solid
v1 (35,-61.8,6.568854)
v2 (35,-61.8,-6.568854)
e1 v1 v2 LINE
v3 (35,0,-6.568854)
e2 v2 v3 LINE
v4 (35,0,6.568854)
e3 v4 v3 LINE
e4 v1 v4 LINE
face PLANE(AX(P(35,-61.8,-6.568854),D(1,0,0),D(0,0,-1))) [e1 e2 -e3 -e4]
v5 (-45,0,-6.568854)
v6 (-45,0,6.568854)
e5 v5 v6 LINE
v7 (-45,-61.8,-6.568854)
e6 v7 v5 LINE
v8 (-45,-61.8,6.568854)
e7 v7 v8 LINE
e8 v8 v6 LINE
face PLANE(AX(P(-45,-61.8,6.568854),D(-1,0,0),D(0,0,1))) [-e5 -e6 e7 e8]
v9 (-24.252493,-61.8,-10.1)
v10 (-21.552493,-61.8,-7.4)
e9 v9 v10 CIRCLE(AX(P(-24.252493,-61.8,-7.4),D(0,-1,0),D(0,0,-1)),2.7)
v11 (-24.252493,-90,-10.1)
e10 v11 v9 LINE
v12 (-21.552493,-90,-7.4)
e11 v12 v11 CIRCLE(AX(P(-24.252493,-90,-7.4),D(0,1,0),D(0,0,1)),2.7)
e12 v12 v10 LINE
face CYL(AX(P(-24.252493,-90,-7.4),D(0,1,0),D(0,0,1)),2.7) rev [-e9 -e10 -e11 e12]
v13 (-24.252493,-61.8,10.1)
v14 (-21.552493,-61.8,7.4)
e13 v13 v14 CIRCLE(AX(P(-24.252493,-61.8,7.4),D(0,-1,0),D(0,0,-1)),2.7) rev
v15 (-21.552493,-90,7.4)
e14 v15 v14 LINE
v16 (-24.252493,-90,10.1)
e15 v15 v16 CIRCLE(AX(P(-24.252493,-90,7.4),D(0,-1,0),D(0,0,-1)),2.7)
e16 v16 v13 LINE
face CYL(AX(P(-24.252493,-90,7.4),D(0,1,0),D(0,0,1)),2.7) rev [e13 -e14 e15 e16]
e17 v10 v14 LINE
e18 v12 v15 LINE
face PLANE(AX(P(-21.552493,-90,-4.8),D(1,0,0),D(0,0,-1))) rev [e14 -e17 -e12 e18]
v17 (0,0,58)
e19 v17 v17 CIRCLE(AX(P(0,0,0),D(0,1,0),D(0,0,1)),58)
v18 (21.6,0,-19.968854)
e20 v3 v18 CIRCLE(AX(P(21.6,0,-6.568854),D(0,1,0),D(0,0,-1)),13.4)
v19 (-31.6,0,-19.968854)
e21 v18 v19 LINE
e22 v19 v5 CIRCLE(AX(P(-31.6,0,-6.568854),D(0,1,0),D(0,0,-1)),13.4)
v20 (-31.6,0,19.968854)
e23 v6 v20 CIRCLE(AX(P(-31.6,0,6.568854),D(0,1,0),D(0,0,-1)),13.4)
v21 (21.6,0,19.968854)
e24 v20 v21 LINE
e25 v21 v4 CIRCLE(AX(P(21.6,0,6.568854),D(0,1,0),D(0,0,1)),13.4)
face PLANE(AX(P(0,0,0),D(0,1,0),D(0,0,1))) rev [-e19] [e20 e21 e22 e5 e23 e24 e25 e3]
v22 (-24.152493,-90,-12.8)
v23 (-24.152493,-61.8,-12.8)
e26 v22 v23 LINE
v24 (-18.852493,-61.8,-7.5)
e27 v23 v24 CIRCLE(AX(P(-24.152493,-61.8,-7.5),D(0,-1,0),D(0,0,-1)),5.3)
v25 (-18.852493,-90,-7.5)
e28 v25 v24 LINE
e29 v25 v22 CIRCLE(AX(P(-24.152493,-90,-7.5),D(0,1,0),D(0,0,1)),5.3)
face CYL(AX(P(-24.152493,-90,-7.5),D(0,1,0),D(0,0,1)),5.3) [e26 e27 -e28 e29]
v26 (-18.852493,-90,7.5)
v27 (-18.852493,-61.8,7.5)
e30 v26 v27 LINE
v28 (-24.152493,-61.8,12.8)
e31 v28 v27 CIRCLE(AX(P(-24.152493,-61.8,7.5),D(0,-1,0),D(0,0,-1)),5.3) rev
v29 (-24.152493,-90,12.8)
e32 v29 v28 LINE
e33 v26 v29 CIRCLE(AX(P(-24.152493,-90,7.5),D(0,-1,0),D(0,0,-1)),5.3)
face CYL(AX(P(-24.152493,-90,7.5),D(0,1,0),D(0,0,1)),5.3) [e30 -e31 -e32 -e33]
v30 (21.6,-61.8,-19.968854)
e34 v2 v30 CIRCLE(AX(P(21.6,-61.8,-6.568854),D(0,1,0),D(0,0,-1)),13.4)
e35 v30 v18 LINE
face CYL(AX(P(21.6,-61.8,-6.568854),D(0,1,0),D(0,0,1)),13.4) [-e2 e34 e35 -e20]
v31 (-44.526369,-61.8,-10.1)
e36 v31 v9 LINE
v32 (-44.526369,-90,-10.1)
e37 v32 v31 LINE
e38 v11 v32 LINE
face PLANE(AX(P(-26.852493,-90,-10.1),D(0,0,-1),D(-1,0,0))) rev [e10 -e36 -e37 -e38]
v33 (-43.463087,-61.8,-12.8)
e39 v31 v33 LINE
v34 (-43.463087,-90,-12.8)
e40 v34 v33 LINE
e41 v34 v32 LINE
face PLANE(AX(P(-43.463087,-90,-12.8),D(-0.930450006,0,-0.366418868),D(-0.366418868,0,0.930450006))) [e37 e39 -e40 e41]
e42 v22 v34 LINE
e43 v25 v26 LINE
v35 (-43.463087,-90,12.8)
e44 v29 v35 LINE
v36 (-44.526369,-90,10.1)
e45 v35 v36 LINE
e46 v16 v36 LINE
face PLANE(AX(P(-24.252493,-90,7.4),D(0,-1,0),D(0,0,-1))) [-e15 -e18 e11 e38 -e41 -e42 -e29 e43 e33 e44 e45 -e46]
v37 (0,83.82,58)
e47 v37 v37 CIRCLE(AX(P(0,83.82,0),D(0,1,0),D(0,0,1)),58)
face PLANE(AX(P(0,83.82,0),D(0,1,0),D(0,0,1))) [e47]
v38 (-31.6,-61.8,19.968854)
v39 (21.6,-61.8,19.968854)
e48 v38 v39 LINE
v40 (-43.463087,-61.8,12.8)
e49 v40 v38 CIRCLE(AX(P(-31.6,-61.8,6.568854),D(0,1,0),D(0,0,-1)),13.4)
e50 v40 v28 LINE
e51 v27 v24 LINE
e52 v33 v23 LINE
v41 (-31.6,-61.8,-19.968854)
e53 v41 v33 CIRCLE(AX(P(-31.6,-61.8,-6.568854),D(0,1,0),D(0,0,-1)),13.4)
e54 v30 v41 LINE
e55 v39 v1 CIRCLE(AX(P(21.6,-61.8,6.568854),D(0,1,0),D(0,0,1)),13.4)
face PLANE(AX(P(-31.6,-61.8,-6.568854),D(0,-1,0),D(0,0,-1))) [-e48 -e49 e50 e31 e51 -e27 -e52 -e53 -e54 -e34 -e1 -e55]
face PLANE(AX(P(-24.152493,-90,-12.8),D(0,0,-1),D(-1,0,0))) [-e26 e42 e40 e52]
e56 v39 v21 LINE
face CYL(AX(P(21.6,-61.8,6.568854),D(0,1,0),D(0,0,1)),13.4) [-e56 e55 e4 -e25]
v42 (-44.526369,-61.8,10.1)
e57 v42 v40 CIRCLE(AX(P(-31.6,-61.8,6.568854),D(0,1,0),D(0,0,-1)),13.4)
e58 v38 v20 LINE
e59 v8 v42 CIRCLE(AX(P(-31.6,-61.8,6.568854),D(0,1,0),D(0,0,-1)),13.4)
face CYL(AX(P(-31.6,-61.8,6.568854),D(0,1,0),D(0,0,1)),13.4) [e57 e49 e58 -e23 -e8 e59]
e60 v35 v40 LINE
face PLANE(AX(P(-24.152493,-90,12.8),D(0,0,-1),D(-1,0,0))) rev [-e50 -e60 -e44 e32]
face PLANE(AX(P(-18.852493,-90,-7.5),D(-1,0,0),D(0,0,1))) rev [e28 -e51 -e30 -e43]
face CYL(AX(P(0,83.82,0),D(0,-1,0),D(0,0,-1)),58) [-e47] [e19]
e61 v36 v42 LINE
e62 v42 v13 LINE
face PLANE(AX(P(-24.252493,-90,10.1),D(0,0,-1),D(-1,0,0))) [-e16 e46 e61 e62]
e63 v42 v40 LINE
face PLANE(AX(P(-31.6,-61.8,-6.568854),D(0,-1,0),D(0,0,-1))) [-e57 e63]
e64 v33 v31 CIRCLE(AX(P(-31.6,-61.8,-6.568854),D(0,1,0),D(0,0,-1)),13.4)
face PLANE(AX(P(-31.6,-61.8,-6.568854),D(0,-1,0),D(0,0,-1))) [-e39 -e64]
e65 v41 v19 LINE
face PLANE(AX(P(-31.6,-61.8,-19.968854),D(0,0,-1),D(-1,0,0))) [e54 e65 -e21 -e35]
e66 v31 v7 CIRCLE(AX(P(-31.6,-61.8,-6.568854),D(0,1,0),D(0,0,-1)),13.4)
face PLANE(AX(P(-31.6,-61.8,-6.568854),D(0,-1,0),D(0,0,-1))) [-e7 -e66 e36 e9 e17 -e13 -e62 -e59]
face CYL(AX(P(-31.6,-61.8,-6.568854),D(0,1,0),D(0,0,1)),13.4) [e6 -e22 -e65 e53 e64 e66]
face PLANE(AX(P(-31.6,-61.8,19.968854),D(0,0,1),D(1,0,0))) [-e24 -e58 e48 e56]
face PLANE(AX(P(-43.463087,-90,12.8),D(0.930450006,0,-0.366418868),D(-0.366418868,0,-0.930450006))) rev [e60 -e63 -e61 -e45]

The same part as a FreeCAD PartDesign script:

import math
import FreeCAD as App
import Part
import Sketcher

doc = App.newDocument("Part")
body = doc.addObject("PartDesign::Body", "Body")

# Sketch on XZ plane
sketch1 = body.newObject("Sketcher::SketchObject", "Sketch")
sketch1.AttachmentSupport = (doc.getObject("XZ_Plane"), [""])
sketch1.MapMode = "FlatFace"
sketch1.addGeometry(Part.Circle(App.Vector(0, 0, 0), App.Vector(0, 0, 1), 58), False)
sketch1.addConstraint([
    Sketcher.Constraint("Coincident", 0, 3, -1, 1),
    Sketcher.Constraint("Diameter", 0, 116.0),
])
pad1 = body.newObject("PartDesign::Pad", "Pad")
pad1.Profile = sketch1
pad1.Length = 83.82
pad1.Reversed = True

# Sketch on XZ plane
sketch2 = body.newObject("Sketcher::SketchObject", "Sketch001")
sketch2.AttachmentSupport = (doc.getObject("XZ_Plane"), [""])
sketch2.MapMode = "FlatFace"
sketch2.addGeometry([
    Part.LineSegment(App.Vector(-45, -7, 0), App.Vector(-45, 7, 0)),  # 0
    Part.ArcOfCircle(Part.Circle(App.Vector(-32, 7, 0), App.Vector(0, 0, 1), 13), math.radians(90), math.radians(180)),  # 1
    Part.LineSegment(App.Vector(-32, 20, 0), App.Vector(22, 20, 0)),  # 2
    Part.ArcOfCircle(Part.Circle(App.Vector(22, 7, 0), App.Vector(0, 0, 1), 13), math.radians(0), math.radians(90)),  # 3
    Part.LineSegment(App.Vector(35, 7, 0), App.Vector(35, -7, 0)),  # 4
    Part.ArcOfCircle(Part.Circle(App.Vector(22, -7, 0), App.Vector(0, 0, 1), 13), math.radians(-90), math.radians(0)),  # 5
    Part.LineSegment(App.Vector(22, -20, 0), App.Vector(-32, -20, 0)),  # 6
    Part.ArcOfCircle(Part.Circle(App.Vector(-32, -7, 0), App.Vector(0, 0, 1), 13), math.radians(180), math.radians(270)),  # 7
], False)
sketch2.addConstraint([
    Sketcher.Constraint("Tangent", 0, 2, 1, 2),
    Sketcher.Constraint("Tangent", 1, 1, 2, 1),
    Sketcher.Constraint("Tangent", 2, 2, 3, 2),
    Sketcher.Constraint("Tangent", 3, 1, 4, 1),
    Sketcher.Constraint("Tangent", 4, 2, 5, 2),
    Sketcher.Constraint("Tangent", 5, 1, 6, 1),
    Sketcher.Constraint("Tangent", 6, 2, 7, 2),
    Sketcher.Constraint("Tangent", 7, 1, 0, 1),
    Sketcher.Constraint("Vertical", 0),
    Sketcher.Constraint("Horizontal", 2),
    Sketcher.Constraint("Vertical", 4),
    Sketcher.Constraint("Horizontal", 6),
    Sketcher.Constraint("Equal", 1, 3),
    Sketcher.Constraint("Equal", 3, 5),
    Sketcher.Constraint("Equal", 5, 7),
    Sketcher.Constraint("Radius", 1, 13.4),
    Sketcher.Constraint("DistanceX", 2, 1, 2, 2, 53.2),
    Sketcher.Constraint("DistanceX", 0, 2, -1, 1, 45.0),
    Sketcher.Constraint("DistanceY", 0, 1, 0, 2, 13.137709),
    Sketcher.Constraint("DistanceY", -1, 1, 1, 3, 6.568854),
])
pad2 = body.newObject("PartDesign::Pad", "Pad001")
pad2.Profile = sketch2
pad2.Length = 61.8

# Sketch on XZ plane
sketch3 = body.newObject("Sketcher::SketchObject", "Sketch002")
sketch3.AttachmentSupport = (doc.getObject("XZ_Plane"), [""])
sketch3.MapMode = "FlatFace"
sketch3.addGeometry([
    Part.ArcOfCircle(Part.Circle(App.Vector(-24.3, -7.4, 0), App.Vector(0, 0, 1), 2.7), math.radians(-90), math.radians(0)),  # 0
    Part.LineSegment(App.Vector(-21.6, -7.4, 0), App.Vector(-21.6, 7.4, 0)),  # 1
    Part.ArcOfCircle(Part.Circle(App.Vector(-24.3, 7.4, 0), App.Vector(0, 0, 1), 2.7), math.radians(0), math.radians(90)),  # 2
    Part.LineSegment(App.Vector(-24.3, 10.1, 0), App.Vector(-44.5, 10.1, 0)),  # 3
    Part.LineSegment(App.Vector(-44.5, 10.1, 0), App.Vector(-43.5, 12.8, 0)),  # 4
    Part.LineSegment(App.Vector(-43.5, 12.8, 0), App.Vector(-24.2, 12.8, 0)),  # 5
    Part.ArcOfCircle(Part.Circle(App.Vector(-24.2, 7.5, 0), App.Vector(0, 0, 1), 5.3), math.radians(0), math.radians(90)),  # 6
    Part.LineSegment(App.Vector(-18.9, 7.5, 0), App.Vector(-18.9, -7.5, 0)),  # 7
    Part.ArcOfCircle(Part.Circle(App.Vector(-24.2, -7.5, 0), App.Vector(0, 0, 1), 5.3), math.radians(-90), math.radians(0)),  # 8
    Part.LineSegment(App.Vector(-24.2, -12.8, 0), App.Vector(-43.5, -12.8, 0)),  # 9
    Part.LineSegment(App.Vector(-43.5, -12.8, 0), App.Vector(-44.5, -10.1, 0)),  # 10
    Part.LineSegment(App.Vector(-44.5, -10.1, 0), App.Vector(-24.3, -10.1, 0)),  # 11
], False)
sketch3.addConstraint([
    Sketcher.Constraint("Tangent", 0, 2, 1, 1),
    Sketcher.Constraint("Tangent", 1, 2, 2, 1),
    Sketcher.Constraint("Tangent", 2, 2, 3, 1),
    Sketcher.Constraint("Coincident", 3, 2, 4, 1),
    Sketcher.Constraint("Coincident", 4, 2, 5, 1),
    Sketcher.Constraint("Tangent", 5, 2, 6, 2),
    Sketcher.Constraint("Tangent", 6, 1, 7, 1),
    Sketcher.Constraint("Tangent", 7, 2, 8, 2),
    Sketcher.Constraint("Tangent", 8, 1, 9, 1),
    Sketcher.Constraint("Coincident", 9, 2, 10, 1),
    Sketcher.Constraint("Coincident", 10, 2, 11, 1),
    Sketcher.Constraint("Tangent", 11, 2, 0, 1),
    Sketcher.Constraint("Vertical", 1),
    Sketcher.Constraint("Horizontal", 3),
    Sketcher.Constraint("Horizontal", 5),
    Sketcher.Constraint("Vertical", 7),
    Sketcher.Constraint("Horizontal", 9),
    Sketcher.Constraint("Horizontal", 11),
    Sketcher.Constraint("Equal", 0, 2),
    Sketcher.Constraint("Equal", 6, 8),
    Sketcher.Constraint("Symmetric", 4, 2, 9, 2, -1),
    Sketcher.Constraint("Symmetric", 3, 2, 10, 2, -1),
    Sketcher.Constraint("Radius", 0, 2.7),
    Sketcher.Constraint("Radius", 6, 5.3),
    Sketcher.Constraint("DistanceY", 7, 2, 7, 1, 15.0),
    Sketcher.Constraint("DistanceY", 1, 1, 1, 2, 14.8),
    Sketcher.Constraint("DistanceX", 2, 3, 6, 3, 0.1),
    Sketcher.Constraint("Distance", 4, 2.901822),
    Sketcher.Constraint("DistanceX", 3, 2, 3, 1, 20.273875),
    Sketcher.Constraint("DistanceX", 3, 2, -1, 1, 44.526369),
])
pad3 = body.newObject("PartDesign::Pad", "Pad002")
pad3.Profile = sketch3
pad3.Length = 90

doc.recompute()
